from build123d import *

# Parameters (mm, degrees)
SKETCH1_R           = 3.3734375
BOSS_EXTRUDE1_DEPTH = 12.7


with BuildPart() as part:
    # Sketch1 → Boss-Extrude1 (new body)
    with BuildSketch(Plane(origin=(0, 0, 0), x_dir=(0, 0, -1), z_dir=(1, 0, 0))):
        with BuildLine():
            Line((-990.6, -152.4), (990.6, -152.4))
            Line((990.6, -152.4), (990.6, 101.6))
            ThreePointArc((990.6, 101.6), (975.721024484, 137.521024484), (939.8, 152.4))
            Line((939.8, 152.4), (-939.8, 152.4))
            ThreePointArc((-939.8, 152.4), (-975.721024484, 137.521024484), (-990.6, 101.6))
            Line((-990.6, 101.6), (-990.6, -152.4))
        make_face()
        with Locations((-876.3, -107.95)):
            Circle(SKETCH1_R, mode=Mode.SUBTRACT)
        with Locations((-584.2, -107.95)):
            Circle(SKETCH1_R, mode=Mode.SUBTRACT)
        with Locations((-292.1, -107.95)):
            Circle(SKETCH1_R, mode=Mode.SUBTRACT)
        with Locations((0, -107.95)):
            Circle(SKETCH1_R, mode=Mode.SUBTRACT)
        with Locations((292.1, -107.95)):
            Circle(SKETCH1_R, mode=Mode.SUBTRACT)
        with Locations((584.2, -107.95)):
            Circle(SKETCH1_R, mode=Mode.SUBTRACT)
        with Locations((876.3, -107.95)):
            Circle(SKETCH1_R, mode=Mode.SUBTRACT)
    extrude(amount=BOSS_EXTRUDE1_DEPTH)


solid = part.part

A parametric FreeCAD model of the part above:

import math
import FreeCAD as App
import Part
import Sketcher
Q = App.Units.Quantity

doc = App.newDocument("Part")
body = doc.addObject("PartDesign::Body", "Body")

sketch1 = doc.addObject("Sketcher::SketchObject", "Sketch")
body.addObject(sketch1)
sketch1.AttachmentSupport = (doc.YZ_Plane, [""])
sketch1.MapMode = "FlatFace"
sketch1.addGeometry(Part.LineSegment(App.Vector(-152.4, 990.6, 0), App.Vector(-152.4, -990.6, 0)), False)
sketch1.addGeometry(Part.LineSegment(App.Vector(-152.4, -990.6, 0), App.Vector(101.6, -990.6, 0)), False)
sketch1.addGeometry(Part.ArcOfCircle(Part.Circle(App.Vector(101.6, -939.8, 0), App.Vector(0, 0, 1), 50.8), math.radians(-90), math.radians(0)), False)
sketch1.addGeometry(Part.LineSegment(App.Vector(152.4, -939.8, 0), App.Vector(152.4, 939.8, 0)), False)
sketch1.addGeometry(Part.ArcOfCircle(Part.Circle(App.Vector(101.6, 939.8, 0), App.Vector(0, 0, 1), 50.8), math.radians(0), math.radians(90)), False)
sketch1.addGeometry(Part.LineSegment(App.Vector(101.6, 990.6, 0), App.Vector(-152.4, 990.6, 0)), False)
sketch1.addGeometry(Part.Circle(App.Vector(-108, 876.3, 0), App.Vector(0, 0, 1), 3.4), False)
sketch1.addGeometry(Part.Circle(App.Vector(-108, 584.2, 0), App.Vector(0, 0, 1), 3.4), False)
sketch1.addGeometry(Part.Circle(App.Vector(-108, 292.1, 0), App.Vector(0, 0, 1), 3.4), False)
sketch1.addGeometry(Part.Circle(App.Vector(-108, 0, 0), App.Vector(0, 0, 1), 3.4), False)
sketch1.addGeometry(Part.Circle(App.Vector(-108, -292.1, 0), App.Vector(0, 0, 1), 3.4), False)
sketch1.addGeometry(Part.Circle(App.Vector(-108, -584.2, 0), App.Vector(0, 0, 1), 3.4), False)
sketch1.addGeometry(Part.Circle(App.Vector(-108, -876.3, 0), App.Vector(0, 0, 1), 3.4), False)
sketch1.addConstraint(Sketcher.Constraint("Coincident", 0, 2, 1, 1))
sketch1.addConstraint(Sketcher.Constraint("Tangent", 1, 2, 2, 1))
sketch1.addConstraint(Sketcher.Constraint("Tangent", 2, 2, 3, 1))
sketch1.addConstraint(Sketcher.Constraint("Tangent", 3, 2, 4, 1))
sketch1.addConstraint(Sketcher.Constraint("Tangent", 4, 2, 5, 1))
sketch1.addConstraint(Sketcher.Constraint("Coincident", 5, 2, 0, 1))
sketch1.addConstraint(Sketcher.Constraint("Vertical", 0))
sketch1.addConstraint(Sketcher.Constraint("Horizontal", 1))
sketch1.addConstraint(Sketcher.Constraint("Vertical", 3))
sketch1.addConstraint(Sketcher.Constraint("Horizontal", 5))
sketch1.addConstraint(Sketcher.Constraint("Equal", 2, 4))
sketch1.addConstraint(Sketcher.Constraint("Equal", 6, 7))
sketch1.addConstraint(Sketcher.Constraint("Equal", 7, 8))
sketch1.addConstraint(Sketcher.Constraint("Equal", 8, 9))
sketch1.addConstraint(Sketcher.Constraint("Equal", 9, 10))
sketch1.addConstraint(Sketcher.Constraint("Equal", 10, 11))
sketch1.addConstraint(Sketcher.Constraint("Equal", 11, 12))
sketch1.addConstraint(Sketcher.Constraint("Symmetric", 8, 3, 10, 3, -1))
sketch1.addConstraint(Sketcher.Constraint("Symmetric", 7, 3, 11, 3, -1))
sketch1.addConstraint(Sketcher.Constraint("Symmetric", 6, 3, 12, 3, -1))
sketch1.addConstraint(Sketcher.Constraint("PointOnObject", 9, 3, -1))
sketch1.addConstraint(Sketcher.Constraint("Vertical", 6, 3, 7, 3))
sketch1.addConstraint(Sketcher.Constraint("Vertical", 7, 3, 8, 3))
sketch1.addConstraint(Sketcher.Constraint("Vertical", 8, 3, 9, 3))
sketch1.addConstraint(Sketcher.Constraint("Radius", 2, Q("2 in")))
sketch1.addConstraint(Sketcher.Constraint("DistanceX", 1, 1, 1, 2, Q("10 in")))
sketch1.addConstraint(Sketcher.Constraint("DistanceY", 0, 2, 0, 1, Q("78 in")))
sketch1.addConstraint(Sketcher.Constraint("Diameter", 6, Q("0.265625 in")))
sketch1.addConstraint(Sketcher.Constraint("DistanceX", -1, 1, 2, 3, Q("4 in")))
sketch1.addConstraint(Sketcher.Constraint("DistanceY", 2, 3, -1, 1, Q("37 in")))
sketch1.addConstraint(Sketcher.Constraint("DistanceY", -1, 1, 7, 3, Q("23 in")))
sketch1.addConstraint(Sketcher.Constraint("DistanceY", 8, 3, 6, 3, Q("23 in")))
sketch1.addConstraint(Sketcher.Constraint("DistanceY", 10, 3, 8, 3, Q("23 in")))
sketch1.addConstraint(Sketcher.Constraint("DistanceX", 6, 3, -1, 1, Q("4.25 in")))
pad1 = doc.addObject("PartDesign::Pad", "Pad")
body.addObject(pad1)
pad1.Profile = sketch1
pad1.Length = Q("0.5 in")

doc.recompute()
